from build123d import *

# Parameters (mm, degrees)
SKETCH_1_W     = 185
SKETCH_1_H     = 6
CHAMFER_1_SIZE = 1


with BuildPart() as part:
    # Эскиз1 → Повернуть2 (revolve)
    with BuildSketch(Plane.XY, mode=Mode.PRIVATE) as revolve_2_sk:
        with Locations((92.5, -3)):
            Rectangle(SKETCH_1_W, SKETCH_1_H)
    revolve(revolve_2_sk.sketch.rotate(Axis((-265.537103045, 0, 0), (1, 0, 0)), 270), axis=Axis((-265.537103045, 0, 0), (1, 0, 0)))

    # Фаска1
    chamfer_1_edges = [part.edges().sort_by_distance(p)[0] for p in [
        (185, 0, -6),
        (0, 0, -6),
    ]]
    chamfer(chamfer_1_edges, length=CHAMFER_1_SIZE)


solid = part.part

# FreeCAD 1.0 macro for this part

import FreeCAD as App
import Part
import Sketcher
from FreeCAD import Vector


def edges_at(feature, points):
    """Names of the edges that pass closest to the given points."""
    edges = feature.Shape.Edges
    near = lambda p: min(range(len(edges)), key=lambda i: edges[i].distToShape(Part.Vertex(*p))[0])
    return sorted({f"Edge{near(p) + 1}" for p in points})


def add_polygon(sketch, points):
    """Adds a closed chain of lines whose ends are joined by coincident constraints."""
    first, n = sketch.GeometryCount, len(points)
    for a, b in zip(points, points[1:] + points[:1]):
        sketch.addGeometry(Part.LineSegment(App.Vector(*a, 0), App.Vector(*b, 0)), False)
    for i in range(n):
        sketch.addConstraint(Sketcher.Constraint("Coincident", first + i, 2, first + (i + 1) % n, 1))

doc = App.newDocument("Part")
body = doc.addObject("PartDesign::Body", "Body")

# Sketch on XY plane
sketch1 = body.newObject("Sketcher::SketchObject", "Sketch")
sketch1.AttachmentSupport = (doc.getObject("XY_Plane"), [""])
sketch1.MapMode = "FlatFace"
add_polygon(sketch1, [(0, 0), (0, -6), (185, -6), (185, 0)])  # lines 0-3
sketch1.addConstraint(Sketcher.Constraint("Vertical", 0))
sketch1.addConstraint(Sketcher.Constraint("Horizontal", 1))
sketch1.addConstraint(Sketcher.Constraint("Vertical", 2))
sketch1.addConstraint(Sketcher.Constraint("Horizontal", 3))
sketch1.addConstraint(Sketcher.Constraint("Coincident", 3, 2, -1, 1))
sketch1.addConstraint(Sketcher.Constraint("DistanceX", 1, 1, 1, 2, 185.0))
sketch1.addConstraint(Sketcher.Constraint("DistanceY", 0, 2, 0, 1, 6.0))
revolution = body.newObject("PartDesign::Revolution", "Revolution")
revolution.Profile = sketch1
revolution.ReferenceAxis = (sketch1, ["H_Axis"])
revolution.Angle = 360
doc.recompute()

chamfer = body.newObject("PartDesign::Chamfer", "Chamfer")
chamfer.Base = (revolution, edges_at(revolution, [(185, 0, -6), (0, 0, -6)]))
chamfer.Size = 1

doc.recompute()
